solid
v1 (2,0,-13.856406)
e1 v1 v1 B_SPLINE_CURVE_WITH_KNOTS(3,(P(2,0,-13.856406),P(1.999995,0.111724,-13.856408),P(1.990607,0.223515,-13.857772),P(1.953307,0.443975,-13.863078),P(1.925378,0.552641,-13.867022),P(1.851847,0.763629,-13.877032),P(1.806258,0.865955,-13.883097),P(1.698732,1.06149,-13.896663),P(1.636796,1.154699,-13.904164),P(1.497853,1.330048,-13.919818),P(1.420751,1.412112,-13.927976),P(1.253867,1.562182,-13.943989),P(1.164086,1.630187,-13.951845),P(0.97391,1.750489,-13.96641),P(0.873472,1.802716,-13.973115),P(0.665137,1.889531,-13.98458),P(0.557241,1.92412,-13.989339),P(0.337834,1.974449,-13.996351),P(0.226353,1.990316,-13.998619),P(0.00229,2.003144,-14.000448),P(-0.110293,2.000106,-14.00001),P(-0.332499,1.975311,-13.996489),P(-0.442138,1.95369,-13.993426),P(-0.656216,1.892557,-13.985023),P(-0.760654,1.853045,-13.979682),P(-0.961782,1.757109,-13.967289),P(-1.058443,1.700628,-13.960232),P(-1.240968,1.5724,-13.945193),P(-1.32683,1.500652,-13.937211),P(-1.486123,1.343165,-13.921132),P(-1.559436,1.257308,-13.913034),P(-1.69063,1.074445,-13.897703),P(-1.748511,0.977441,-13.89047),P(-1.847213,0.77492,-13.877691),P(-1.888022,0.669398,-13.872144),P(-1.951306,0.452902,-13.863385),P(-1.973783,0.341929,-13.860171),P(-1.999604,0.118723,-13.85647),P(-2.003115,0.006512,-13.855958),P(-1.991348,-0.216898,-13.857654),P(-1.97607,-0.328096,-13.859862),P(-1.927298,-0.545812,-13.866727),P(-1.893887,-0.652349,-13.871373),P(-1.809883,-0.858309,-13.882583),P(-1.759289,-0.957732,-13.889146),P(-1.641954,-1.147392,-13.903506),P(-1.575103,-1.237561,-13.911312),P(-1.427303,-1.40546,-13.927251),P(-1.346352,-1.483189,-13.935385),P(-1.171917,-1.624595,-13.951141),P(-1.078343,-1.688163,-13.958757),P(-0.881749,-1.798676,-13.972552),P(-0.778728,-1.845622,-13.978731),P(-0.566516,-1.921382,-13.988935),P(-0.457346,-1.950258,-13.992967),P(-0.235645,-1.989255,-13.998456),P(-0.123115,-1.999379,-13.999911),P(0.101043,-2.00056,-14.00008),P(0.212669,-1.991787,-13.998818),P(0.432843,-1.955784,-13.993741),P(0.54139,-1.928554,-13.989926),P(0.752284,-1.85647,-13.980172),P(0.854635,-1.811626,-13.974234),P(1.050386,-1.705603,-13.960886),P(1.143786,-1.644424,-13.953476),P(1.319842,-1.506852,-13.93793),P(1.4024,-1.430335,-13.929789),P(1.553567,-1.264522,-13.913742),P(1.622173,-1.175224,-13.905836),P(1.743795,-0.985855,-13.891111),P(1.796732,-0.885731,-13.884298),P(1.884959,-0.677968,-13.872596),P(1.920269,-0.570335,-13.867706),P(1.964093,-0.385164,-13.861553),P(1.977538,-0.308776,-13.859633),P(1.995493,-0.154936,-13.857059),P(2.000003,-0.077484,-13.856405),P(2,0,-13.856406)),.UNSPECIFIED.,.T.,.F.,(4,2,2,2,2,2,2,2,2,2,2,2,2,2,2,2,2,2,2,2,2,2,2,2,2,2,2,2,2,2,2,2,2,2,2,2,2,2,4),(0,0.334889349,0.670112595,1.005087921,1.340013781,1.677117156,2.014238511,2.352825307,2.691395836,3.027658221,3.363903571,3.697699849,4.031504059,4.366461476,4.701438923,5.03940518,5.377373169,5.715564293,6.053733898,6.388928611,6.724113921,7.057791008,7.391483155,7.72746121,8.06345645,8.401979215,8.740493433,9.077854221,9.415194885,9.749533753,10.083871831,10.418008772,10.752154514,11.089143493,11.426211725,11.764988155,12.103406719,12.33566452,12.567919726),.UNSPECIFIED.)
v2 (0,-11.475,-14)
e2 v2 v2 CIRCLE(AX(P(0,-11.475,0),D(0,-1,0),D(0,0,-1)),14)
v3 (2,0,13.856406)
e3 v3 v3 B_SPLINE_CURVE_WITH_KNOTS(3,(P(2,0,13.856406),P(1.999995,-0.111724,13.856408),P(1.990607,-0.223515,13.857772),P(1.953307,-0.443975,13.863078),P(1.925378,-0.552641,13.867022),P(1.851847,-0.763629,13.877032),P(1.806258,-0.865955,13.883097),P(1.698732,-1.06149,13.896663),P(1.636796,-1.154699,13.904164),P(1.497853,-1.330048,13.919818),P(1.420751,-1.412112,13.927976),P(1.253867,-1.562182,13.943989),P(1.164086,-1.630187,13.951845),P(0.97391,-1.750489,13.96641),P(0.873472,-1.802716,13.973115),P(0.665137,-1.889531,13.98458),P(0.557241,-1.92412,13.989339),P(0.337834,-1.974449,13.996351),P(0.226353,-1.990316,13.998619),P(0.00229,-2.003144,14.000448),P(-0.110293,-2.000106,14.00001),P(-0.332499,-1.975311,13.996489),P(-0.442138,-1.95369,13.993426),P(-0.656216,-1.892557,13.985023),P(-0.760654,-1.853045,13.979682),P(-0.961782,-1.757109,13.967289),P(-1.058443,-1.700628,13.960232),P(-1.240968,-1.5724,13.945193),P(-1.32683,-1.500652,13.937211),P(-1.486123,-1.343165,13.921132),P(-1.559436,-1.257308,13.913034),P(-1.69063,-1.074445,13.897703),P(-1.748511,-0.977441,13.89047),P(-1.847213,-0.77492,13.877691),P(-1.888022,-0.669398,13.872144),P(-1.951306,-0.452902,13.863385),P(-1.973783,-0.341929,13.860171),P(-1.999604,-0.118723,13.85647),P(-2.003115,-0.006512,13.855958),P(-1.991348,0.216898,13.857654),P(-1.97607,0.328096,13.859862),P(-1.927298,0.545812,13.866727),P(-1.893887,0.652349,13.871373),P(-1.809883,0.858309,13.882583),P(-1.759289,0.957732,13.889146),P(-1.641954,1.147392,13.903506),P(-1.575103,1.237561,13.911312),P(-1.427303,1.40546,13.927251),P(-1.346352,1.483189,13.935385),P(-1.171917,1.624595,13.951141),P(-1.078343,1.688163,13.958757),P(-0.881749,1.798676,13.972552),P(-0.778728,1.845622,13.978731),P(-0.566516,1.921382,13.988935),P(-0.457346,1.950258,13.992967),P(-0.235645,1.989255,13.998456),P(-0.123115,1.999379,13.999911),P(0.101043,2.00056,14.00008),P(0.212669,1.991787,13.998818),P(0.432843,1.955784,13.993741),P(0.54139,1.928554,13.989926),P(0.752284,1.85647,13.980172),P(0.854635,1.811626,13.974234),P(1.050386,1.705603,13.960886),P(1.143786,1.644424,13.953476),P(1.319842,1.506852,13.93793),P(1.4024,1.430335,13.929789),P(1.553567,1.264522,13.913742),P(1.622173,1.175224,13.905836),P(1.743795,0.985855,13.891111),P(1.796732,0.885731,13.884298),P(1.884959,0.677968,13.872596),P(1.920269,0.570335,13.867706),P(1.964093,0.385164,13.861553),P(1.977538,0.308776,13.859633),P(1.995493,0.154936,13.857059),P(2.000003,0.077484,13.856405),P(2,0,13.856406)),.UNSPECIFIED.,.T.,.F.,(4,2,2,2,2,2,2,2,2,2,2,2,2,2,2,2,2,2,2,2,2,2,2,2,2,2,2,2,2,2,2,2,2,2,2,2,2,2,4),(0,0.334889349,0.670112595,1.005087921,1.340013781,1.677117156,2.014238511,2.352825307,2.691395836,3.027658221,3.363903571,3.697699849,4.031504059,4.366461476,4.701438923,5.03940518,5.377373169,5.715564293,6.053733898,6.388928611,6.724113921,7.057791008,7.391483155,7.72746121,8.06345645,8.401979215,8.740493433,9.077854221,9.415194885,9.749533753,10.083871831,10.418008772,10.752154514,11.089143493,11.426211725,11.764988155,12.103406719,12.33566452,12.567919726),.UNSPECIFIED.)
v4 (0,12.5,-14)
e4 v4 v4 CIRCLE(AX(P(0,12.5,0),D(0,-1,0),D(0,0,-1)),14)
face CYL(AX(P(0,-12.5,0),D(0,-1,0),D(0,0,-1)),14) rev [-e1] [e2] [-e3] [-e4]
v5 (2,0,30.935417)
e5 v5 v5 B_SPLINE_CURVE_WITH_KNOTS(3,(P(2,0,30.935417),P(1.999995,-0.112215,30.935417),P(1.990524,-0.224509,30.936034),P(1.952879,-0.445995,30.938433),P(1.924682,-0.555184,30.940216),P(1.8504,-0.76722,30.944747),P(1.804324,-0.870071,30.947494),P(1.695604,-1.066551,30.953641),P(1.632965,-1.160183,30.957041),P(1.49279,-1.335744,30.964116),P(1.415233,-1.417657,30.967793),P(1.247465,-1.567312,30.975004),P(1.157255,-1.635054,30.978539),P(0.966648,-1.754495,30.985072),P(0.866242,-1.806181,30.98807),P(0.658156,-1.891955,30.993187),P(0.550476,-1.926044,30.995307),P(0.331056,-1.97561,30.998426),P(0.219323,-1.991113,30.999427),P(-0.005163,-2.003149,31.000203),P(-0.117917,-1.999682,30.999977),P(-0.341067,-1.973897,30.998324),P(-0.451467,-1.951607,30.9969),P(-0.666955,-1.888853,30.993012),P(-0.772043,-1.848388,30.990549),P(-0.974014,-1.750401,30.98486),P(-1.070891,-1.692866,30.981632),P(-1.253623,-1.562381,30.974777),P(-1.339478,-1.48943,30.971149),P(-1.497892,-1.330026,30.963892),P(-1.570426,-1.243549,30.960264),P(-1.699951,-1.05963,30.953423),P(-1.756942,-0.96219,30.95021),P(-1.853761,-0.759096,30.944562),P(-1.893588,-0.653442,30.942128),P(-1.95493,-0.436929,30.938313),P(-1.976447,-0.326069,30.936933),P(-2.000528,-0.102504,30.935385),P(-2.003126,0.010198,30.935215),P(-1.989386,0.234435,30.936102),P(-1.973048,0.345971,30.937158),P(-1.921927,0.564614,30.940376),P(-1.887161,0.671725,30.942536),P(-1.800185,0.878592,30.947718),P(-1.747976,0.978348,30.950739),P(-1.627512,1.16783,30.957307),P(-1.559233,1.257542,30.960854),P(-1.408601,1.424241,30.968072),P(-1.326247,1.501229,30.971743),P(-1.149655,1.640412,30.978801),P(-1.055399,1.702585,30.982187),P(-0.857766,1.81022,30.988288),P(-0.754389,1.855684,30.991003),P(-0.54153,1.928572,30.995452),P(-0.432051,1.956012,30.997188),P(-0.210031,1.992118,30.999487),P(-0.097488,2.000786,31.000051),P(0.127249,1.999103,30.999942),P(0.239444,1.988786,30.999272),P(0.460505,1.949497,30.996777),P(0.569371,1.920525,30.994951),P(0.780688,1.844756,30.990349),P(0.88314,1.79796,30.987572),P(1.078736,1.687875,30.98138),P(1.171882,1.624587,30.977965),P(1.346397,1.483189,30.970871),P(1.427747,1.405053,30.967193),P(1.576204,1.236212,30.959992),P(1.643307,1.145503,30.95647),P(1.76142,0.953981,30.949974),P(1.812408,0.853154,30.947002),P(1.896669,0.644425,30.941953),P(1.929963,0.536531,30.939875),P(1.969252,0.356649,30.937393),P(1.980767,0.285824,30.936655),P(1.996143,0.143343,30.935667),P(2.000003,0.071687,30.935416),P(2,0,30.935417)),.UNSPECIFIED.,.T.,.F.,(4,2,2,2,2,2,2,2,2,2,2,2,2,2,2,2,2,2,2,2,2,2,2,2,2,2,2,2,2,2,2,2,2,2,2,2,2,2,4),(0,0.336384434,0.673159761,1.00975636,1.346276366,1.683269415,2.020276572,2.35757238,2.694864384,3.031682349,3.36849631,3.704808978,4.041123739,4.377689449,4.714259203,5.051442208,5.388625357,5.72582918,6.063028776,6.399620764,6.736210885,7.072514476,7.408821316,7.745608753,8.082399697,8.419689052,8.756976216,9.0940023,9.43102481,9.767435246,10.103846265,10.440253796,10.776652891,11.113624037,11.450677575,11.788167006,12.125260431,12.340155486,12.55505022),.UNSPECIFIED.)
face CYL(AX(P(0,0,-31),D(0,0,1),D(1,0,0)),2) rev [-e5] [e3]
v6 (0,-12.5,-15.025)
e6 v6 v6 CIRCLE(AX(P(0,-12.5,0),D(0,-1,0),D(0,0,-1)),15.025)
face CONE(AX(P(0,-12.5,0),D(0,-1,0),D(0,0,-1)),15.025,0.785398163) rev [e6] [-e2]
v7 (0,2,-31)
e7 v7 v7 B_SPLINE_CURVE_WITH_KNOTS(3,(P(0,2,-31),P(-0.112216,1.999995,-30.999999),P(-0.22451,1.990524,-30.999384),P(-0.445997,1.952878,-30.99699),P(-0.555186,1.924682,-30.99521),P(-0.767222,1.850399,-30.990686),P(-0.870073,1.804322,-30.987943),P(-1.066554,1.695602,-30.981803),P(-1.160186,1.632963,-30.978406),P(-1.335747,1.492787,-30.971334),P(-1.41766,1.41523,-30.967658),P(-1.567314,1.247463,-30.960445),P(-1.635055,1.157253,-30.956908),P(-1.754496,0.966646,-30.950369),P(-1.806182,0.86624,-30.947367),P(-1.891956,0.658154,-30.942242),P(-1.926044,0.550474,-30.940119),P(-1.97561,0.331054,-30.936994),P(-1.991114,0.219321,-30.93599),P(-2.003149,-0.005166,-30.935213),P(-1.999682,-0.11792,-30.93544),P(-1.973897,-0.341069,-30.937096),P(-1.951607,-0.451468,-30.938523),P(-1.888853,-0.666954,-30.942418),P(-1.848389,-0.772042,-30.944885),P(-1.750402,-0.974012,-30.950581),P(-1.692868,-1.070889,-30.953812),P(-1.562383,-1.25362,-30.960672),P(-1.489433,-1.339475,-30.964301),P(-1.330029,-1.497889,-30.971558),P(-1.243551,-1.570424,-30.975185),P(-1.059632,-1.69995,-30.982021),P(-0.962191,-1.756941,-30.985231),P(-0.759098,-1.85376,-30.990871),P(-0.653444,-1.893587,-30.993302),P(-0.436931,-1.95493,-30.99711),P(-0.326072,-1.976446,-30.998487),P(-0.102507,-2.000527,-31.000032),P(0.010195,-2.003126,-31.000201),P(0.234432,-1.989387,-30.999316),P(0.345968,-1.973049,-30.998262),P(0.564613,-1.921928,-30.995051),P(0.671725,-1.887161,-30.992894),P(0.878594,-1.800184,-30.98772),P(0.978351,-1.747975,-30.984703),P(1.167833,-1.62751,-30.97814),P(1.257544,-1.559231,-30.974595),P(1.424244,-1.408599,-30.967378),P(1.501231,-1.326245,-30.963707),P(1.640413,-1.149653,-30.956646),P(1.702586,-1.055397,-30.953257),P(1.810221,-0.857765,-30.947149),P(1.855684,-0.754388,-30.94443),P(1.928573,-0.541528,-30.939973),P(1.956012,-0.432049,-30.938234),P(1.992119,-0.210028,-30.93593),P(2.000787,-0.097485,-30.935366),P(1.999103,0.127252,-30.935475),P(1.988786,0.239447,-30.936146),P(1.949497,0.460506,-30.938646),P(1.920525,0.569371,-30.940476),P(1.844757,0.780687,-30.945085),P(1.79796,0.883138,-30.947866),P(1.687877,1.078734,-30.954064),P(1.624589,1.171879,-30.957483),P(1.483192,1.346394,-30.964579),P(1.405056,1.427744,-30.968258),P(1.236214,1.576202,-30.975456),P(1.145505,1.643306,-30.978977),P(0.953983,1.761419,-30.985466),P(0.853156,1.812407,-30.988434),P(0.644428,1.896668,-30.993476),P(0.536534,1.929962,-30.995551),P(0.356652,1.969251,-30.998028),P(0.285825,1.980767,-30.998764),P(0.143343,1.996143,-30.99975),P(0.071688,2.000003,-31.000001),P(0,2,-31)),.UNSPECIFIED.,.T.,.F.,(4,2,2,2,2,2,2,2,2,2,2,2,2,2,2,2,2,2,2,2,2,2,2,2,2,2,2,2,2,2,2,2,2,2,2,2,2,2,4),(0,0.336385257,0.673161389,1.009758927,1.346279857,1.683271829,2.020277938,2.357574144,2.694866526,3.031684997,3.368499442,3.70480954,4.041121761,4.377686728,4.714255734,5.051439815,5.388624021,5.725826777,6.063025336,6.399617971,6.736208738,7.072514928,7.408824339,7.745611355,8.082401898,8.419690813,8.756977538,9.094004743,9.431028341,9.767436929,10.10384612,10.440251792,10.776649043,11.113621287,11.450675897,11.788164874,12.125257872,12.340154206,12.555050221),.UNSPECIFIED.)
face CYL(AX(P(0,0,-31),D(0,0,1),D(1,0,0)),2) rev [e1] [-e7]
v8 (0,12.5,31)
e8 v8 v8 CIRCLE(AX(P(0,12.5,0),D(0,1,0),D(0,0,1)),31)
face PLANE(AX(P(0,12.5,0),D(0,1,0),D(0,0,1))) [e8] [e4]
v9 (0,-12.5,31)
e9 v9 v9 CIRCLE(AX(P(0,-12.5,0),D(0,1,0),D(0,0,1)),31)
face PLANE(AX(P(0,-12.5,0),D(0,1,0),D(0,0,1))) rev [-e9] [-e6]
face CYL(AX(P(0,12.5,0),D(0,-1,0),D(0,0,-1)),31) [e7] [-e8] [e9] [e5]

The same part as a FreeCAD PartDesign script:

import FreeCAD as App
import Part
import Sketcher
from FreeCAD import Vector

doc = App.newDocument("Part")
body = doc.addObject("PartDesign::Body", "Body")

sketch1 = doc.addObject("Sketcher::SketchObject", "Sketch")
body.addObject(sketch1)
sketch1.AttachmentSupport = (doc.XZ_Plane, [""])
sketch1.MapMode = "FlatFace"
sketch1.addGeometry(Part.Circle(Vector(0, 0, 0), Vector(0, 0, 1), 31), False)
sketch1.addConstraint(Sketcher.Constraint("Coincident", 0, 3, -1, 1))
sketch1.addConstraint(Sketcher.Constraint("Diameter", 0, 62.0))
pad1 = doc.addObject("PartDesign::Pad", "Pad")
body.addObject(pad1)
pad1.Profile = sketch1
pad1.Length = 25
pad1.Midplane = True

sketch2 = doc.addObject("Sketcher::SketchObject", "Sketch001")
body.addObject(sketch2)
sketch2.AttachmentSupport = (doc.XY_Plane, [""])
sketch2.MapMode = "FlatFace"
sketch2.addGeometry(Part.Circle(Vector(0, 0, 0), Vector(0, 0, 1), 2), False)
sketch2.addConstraint(Sketcher.Constraint("Coincident", 0, 3, -1, 1))
sketch2.addConstraint(Sketcher.Constraint("Diameter", 0, 4.0))
pocket1 = doc.addObject("PartDesign::Pocket", "Pocket")
body.addObject(pocket1)
pocket1.Profile = sketch2
pocket1.Type = "ThroughAll"
pocket1.Midplane = True

sketch3 = doc.addObject("Sketcher::SketchObject", "Sketch002")
body.addObject(sketch3)
sketch3.AttachmentSupport = (doc.XZ_Plane, [""])
sketch3.MapMode = "FlatFace"
sketch3.AttachmentOffset = App.Placement(Vector(0, 0, 12.5), App.Rotation())
sketch3.addGeometry(Part.Circle(Vector(0, 0, 0), Vector(0, 0, 1), 14), False)
sketch3.addConstraint(Sketcher.Constraint("Coincident", 0, 3, -1, 1))
sketch3.addConstraint(Sketcher.Constraint("Diameter", 0, 28.0))
doc.recompute()
hole = doc.addObject("PartDesign::Hole", "Hole")
body.addObject(hole)
hole.Profile = sketch3
hole.ThreadType = "None"
hole.Diameter = 28
hole.DepthType = "Dimension"
hole.Depth = 25
hole.DrillPoint = "Angled"
hole.DrillPointAngle = 118
hole.HoleCutType = "Countersink"
hole.HoleCutDiameter = 30.05
hole.HoleCutCountersinkAngle = 90

doc.recompute()
